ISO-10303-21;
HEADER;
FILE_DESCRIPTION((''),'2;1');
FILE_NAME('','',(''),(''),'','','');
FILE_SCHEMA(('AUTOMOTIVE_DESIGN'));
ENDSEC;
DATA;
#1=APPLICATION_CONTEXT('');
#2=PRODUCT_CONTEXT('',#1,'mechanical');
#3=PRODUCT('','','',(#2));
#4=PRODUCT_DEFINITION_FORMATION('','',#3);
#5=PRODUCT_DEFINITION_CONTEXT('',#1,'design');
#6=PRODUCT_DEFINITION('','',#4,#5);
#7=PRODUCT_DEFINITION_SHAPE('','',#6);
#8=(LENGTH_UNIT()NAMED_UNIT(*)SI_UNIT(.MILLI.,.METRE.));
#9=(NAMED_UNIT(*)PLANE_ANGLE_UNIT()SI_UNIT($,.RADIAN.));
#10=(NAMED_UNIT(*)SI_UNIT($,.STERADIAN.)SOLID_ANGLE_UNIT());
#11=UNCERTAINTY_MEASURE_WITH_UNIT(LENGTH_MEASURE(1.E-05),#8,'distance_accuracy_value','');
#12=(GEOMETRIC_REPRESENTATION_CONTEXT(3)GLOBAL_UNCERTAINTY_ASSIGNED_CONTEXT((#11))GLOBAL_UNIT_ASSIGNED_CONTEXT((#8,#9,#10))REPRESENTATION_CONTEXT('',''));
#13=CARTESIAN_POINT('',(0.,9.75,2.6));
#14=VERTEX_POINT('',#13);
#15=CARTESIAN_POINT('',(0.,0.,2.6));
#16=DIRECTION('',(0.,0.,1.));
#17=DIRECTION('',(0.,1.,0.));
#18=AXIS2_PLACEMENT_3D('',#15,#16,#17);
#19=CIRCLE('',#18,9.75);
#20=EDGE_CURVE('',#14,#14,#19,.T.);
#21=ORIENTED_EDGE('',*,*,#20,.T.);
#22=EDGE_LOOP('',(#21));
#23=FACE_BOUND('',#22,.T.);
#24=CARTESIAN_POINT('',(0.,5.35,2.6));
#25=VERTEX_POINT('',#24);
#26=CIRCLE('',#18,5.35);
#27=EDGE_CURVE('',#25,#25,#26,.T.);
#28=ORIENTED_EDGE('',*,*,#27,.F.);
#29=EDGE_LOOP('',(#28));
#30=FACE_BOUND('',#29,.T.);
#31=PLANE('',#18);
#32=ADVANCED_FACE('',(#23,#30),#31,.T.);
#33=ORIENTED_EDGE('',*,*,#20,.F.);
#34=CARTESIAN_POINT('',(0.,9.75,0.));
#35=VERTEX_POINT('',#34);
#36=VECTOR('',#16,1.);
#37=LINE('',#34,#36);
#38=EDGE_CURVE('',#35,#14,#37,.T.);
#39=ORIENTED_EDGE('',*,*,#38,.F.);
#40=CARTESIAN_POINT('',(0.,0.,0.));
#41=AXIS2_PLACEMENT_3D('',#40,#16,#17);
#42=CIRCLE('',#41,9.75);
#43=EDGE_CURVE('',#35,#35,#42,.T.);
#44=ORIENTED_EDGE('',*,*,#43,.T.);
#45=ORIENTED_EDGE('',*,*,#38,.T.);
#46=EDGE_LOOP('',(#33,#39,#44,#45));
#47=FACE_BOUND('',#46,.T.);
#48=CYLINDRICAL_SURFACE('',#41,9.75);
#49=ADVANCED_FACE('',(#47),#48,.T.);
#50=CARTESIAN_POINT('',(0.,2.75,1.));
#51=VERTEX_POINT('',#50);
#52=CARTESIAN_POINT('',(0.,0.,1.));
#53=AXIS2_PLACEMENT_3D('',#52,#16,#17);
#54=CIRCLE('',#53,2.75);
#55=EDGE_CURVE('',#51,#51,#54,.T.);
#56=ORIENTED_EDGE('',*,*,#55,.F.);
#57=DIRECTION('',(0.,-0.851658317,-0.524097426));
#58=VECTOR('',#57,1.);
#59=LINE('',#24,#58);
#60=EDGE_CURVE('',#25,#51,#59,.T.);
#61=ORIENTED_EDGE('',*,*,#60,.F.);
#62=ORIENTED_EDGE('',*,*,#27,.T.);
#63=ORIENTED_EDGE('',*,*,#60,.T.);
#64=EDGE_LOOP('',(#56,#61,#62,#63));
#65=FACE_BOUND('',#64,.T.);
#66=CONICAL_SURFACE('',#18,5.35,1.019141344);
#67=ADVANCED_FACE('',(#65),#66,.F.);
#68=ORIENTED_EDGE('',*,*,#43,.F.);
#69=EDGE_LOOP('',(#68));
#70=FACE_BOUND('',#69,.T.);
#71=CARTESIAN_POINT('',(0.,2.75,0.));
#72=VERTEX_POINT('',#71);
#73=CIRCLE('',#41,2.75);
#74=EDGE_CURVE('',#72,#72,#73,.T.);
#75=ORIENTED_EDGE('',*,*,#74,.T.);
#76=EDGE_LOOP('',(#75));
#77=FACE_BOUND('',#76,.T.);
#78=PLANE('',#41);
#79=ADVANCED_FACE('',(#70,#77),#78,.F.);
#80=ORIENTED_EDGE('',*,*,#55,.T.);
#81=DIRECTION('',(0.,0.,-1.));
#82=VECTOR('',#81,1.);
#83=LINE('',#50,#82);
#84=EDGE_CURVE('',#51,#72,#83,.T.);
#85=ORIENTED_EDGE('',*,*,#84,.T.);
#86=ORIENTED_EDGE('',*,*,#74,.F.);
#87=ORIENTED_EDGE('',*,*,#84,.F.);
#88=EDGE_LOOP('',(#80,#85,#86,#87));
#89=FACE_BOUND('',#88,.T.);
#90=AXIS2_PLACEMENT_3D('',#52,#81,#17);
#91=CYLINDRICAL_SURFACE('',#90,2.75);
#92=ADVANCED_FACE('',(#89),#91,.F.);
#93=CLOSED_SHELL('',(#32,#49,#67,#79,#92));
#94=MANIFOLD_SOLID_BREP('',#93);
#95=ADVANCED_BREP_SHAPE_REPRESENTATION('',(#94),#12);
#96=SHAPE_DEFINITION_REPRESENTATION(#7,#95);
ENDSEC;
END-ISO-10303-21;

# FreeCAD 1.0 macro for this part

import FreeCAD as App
import Part
import Sketcher
from FreeCAD import Vector
Q = App.Units.Quantity


def add_polygon(sketch, points):
    """Adds a closed chain of lines whose ends are joined by coincident constraints."""
    first, n = sketch.GeometryCount, len(points)
    for a, b in zip(points, points[1:] + points[:1]):
        sketch.addGeometry(Part.LineSegment(App.Vector(*a, 0), App.Vector(*b, 0)), False)
    for i in range(n):
        sketch.addConstraint(Sketcher.Constraint("Coincident", first + i, 2, first + (i + 1) % n, 1))

doc = App.newDocument("Part")
body = doc.addObject("PartDesign::Body", "Body")

sketch1 = body.newObject("Sketcher::SketchObject", "Sketch")
sketch1.AttachmentSupport = (doc.getObject("YZ_Plane"), [""])
sketch1.MapMode = "FlatFace"
add_polygon(sketch1, [(2.75, 0), (9.75, 0), (9.75, 2.6), (5.35, 2.6), (2.75, 1)])
sketch1.addConstraint(Sketcher.Constraint("Horizontal", 0))
sketch1.addConstraint(Sketcher.Constraint("Vertical", 1))
sketch1.addConstraint(Sketcher.Constraint("Horizontal", 2))
sketch1.addConstraint(Sketcher.Constraint("Vertical", 4))
sketch1.addConstraint(Sketcher.Constraint("PointOnObject", 0, 2, -1))
sketch1.addConstraint(Sketcher.Constraint("DistanceX", 0, 1, 0, 2, Q("7 mm")))
sketch1.addConstraint(Sketcher.Constraint("DistanceY", 4, 2, 4, 1, Q("1 mm")))
sketch1.addConstraint(Sketcher.Constraint("DistanceX", 2, 2, 2, 1, Q("4.4 mm")))
sketch1.addConstraint(Sketcher.Constraint("DistanceY", 1, 1, 1, 2, Q("2.6 mm")))
sketch1.addConstraint(Sketcher.Constraint("DistanceX", -1, 1, 0, 2, Q("9.75 mm")))
revolution = body.newObject("PartDesign::Revolution", "Revolution")
revolution.Profile = sketch1
revolution.ReferenceAxis = (sketch1, ["V_Axis"])
revolution.Angle = 360

doc.recompute()
